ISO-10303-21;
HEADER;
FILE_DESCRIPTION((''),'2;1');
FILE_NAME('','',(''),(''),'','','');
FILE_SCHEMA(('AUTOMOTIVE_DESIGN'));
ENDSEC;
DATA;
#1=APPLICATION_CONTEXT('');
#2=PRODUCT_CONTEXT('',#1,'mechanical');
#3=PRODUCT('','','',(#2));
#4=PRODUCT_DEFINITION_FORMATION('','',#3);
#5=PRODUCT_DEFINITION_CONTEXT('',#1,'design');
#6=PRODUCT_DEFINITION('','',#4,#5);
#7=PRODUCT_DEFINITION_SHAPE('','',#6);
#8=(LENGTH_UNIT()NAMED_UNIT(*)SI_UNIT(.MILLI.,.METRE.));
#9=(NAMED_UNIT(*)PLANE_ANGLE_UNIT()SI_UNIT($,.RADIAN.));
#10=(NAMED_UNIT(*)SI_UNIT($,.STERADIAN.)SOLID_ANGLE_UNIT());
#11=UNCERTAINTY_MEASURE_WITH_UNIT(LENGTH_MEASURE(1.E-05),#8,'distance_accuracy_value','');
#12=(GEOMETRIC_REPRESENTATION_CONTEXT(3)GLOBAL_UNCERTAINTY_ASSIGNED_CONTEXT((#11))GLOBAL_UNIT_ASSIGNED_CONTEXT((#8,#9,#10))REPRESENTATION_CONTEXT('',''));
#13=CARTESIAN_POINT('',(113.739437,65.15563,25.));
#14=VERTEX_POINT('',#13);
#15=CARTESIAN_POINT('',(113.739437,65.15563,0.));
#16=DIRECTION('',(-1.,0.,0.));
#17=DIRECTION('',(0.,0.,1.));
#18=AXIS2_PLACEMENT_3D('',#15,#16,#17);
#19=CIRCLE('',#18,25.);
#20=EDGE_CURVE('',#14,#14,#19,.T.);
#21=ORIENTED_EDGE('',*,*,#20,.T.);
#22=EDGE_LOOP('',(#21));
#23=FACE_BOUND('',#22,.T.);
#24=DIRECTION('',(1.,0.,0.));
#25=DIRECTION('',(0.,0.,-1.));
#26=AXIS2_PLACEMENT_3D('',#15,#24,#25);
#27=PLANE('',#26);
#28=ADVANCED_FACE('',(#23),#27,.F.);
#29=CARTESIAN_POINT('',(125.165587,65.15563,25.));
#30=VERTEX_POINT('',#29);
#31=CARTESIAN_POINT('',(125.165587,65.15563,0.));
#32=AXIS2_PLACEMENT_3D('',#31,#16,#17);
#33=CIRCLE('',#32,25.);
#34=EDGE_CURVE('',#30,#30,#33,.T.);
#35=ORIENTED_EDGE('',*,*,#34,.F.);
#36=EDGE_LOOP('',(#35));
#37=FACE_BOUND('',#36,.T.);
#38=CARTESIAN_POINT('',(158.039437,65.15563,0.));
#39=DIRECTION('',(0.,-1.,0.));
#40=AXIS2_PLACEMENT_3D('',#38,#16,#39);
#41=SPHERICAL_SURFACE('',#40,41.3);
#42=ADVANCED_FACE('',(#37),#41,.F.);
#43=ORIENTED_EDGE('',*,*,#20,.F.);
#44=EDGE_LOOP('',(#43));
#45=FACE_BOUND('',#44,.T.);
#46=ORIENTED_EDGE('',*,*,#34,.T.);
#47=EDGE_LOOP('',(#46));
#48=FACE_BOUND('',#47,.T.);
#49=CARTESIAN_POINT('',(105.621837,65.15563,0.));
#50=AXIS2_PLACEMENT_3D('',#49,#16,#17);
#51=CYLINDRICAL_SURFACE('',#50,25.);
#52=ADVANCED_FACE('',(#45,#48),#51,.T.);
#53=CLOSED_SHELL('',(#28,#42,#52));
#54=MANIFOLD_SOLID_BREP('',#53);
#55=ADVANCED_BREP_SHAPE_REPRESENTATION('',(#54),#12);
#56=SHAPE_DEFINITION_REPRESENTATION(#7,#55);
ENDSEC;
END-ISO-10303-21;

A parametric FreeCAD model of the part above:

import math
import FreeCAD as App
import Part
import Sketcher
from FreeCAD import Vector

doc = App.newDocument("Part")
params = doc.addObject("Spreadsheet::Sheet", "Params")
for row, (alias, value) in enumerate([
    ("sketch1_radius", "41.3 mm"),
    ("sketch1_width", "3 mm"),
    ("sketch1_height", "25 mm"),
    ("revolution_angle", "360 deg"),
], start=1):
    params.set(f"A{row}", alias)
    params.set(f"B{row}", "=" + value)
    params.setAlias(f"B{row}", alias)

body = doc.addObject("PartDesign::Body", "Body")

sketch1 = body.newObject("Sketcher::SketchObject", "Sketch")
sketch1.AttachmentSupport = (doc.getObject("XY_Plane"), [""])
sketch1.MapMode = "FlatFace"
sketch1.addGeometry([
    Part.LineSegment(Vector(113.7, 90.2, 0), Vector(113.7, 65.2, 0)),
    Part.LineSegment(Vector(113.7, 65.2, 0), Vector(116.7, 65.2, 0)),
    Part.ArcOfCircle(Part.Circle(Vector(158, 65.2, 0), Vector(0, 0, 1), 41.3), math.radians(143), math.radians(180)),
    Part.LineSegment(Vector(125.2, 90.2, 0), Vector(113.7, 90.2, 0)),
], False)
sketch1.addGeometry(Part.LineSegment(Vector(113.7, 65.2, 0), Vector(158, 65.2, 0)), True)
sketch1.addConstraint([
    Sketcher.Constraint("Coincident", 0, 2, 1, 1),
    Sketcher.Constraint("Coincident", 1, 2, 2, 2),
    Sketcher.Constraint("Coincident", 2, 1, 3, 1),
    Sketcher.Constraint("Coincident", 3, 2, 0, 1),
    Sketcher.Constraint("Vertical", 0),
    Sketcher.Constraint("Horizontal", 1),
    Sketcher.Constraint("Horizontal", 3),
    Sketcher.Constraint("Horizontal", 4),
    Sketcher.Constraint("Coincident", 4, 1, 0, 2),
    Sketcher.Constraint("Coincident", 4, 2, 2, 3),
    Sketcher.Constraint("Radius", 2, 41.3),
    Sketcher.Constraint("DistanceX", 1, 1, 1, 2, 3.0),
    Sketcher.Constraint("DistanceY", 0, 2, 0, 1, 25.0),
    Sketcher.Constraint("DistanceY", -1, 1, 2, 3, 65.15563),
    Sketcher.Constraint("DistanceX", -1, 1, 2, 3, 158.039437),
])
sketch1.setExpression("Constraints[10]", "Params.sketch1_radius")
sketch1.setExpression("Constraints[11]", "Params.sketch1_width")
sketch1.setExpression("Constraints[12]", "Params.sketch1_height")
revolution = body.newObject("PartDesign::Revolution", "Revolution")
revolution.Profile = sketch1
revolution.ReferenceAxis = (sketch1, ["Axis0"])
revolution.setExpression("Angle", "Params.revolution_angle")

doc.recompute()
